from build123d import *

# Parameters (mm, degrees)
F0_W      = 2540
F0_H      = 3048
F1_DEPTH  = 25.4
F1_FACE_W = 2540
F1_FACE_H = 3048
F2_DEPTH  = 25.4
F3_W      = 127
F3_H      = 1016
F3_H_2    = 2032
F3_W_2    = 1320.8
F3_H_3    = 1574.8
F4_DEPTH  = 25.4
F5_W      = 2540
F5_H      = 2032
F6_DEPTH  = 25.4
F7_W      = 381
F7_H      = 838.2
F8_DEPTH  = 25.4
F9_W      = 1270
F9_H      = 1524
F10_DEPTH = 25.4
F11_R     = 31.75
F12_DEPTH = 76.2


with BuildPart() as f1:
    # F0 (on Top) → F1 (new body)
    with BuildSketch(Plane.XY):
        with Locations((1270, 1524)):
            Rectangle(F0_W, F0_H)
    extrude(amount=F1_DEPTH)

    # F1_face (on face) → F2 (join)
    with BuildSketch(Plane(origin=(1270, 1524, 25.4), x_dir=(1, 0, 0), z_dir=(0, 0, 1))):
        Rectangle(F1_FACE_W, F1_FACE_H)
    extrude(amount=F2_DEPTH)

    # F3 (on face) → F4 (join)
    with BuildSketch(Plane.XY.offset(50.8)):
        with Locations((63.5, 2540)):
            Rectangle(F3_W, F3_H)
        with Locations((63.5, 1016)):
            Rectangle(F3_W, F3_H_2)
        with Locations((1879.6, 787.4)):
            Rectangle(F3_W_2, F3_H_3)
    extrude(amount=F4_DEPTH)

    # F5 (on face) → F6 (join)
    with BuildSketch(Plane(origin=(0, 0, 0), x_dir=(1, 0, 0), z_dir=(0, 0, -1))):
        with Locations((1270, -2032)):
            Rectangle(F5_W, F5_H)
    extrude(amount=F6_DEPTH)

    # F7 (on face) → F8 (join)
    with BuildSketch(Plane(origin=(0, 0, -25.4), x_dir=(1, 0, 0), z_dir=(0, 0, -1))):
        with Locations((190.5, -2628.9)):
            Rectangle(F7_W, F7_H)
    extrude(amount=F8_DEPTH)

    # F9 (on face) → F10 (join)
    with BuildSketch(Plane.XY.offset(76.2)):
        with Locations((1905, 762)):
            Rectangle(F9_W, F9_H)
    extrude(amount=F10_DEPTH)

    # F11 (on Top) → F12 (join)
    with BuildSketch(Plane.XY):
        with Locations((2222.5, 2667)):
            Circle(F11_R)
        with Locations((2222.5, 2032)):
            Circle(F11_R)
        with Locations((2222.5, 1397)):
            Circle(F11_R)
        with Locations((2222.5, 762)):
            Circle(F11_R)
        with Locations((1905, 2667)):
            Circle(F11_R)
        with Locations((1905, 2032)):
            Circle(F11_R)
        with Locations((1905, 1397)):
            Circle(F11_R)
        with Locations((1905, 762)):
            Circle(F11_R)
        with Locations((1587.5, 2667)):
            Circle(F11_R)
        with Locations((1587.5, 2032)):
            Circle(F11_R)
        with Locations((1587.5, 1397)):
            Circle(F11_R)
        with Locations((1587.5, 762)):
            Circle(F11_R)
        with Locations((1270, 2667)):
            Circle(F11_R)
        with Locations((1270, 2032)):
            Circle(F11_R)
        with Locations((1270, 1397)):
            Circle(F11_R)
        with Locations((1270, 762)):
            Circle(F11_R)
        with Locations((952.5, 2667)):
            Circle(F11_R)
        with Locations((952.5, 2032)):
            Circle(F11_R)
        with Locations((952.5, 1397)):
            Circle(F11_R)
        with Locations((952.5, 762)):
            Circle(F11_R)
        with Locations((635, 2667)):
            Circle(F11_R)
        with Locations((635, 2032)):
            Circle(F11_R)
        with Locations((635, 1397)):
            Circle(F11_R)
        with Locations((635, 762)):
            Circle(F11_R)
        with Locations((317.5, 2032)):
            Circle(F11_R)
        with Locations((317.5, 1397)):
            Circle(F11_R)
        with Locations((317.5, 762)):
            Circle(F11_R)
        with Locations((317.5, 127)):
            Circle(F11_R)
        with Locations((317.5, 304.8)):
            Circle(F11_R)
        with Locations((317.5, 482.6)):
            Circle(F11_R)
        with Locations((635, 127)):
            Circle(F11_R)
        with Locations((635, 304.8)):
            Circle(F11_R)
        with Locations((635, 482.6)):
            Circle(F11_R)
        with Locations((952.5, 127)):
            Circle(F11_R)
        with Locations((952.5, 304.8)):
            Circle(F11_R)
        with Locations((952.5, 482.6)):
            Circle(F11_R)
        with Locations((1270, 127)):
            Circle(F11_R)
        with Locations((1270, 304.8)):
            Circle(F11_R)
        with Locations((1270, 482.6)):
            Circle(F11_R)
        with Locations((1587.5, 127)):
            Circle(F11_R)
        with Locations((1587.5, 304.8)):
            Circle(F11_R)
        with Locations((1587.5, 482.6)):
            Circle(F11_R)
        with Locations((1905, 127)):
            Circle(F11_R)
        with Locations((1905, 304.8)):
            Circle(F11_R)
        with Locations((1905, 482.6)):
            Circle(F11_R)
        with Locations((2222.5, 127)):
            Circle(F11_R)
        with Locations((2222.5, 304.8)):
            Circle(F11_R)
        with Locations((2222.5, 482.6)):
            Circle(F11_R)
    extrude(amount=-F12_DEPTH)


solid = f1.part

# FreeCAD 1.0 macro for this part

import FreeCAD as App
import Part
import Sketcher
from FreeCAD import Vector
Q = App.Units.Quantity

doc = App.newDocument("Part")
body = doc.addObject("PartDesign::Body", "Body")

sketch1 = body.newObject("Sketcher::SketchObject", "Sketch")
sketch1.AttachmentSupport = (doc.getObject("XY_Plane"), [""])
sketch1.MapMode = "FlatFace"
sketch1.addGeometry([
    Part.LineSegment(Vector(0, 3048, 0), Vector(0, 0, 0)),
    Part.LineSegment(Vector(0, 0, 0), Vector(2540, 0, 0)),
    Part.LineSegment(Vector(2540, 0, 0), Vector(2540, 3048, 0)),
    Part.LineSegment(Vector(2540, 3048, 0), Vector(0, 3048, 0)),
], False)
sketch1.addConstraint([
    Sketcher.Constraint("Coincident", 0, 2, 1, 1),
    Sketcher.Constraint("Coincident", 1, 2, 2, 1),
    Sketcher.Constraint("Coincident", 2, 2, 3, 1),
    Sketcher.Constraint("Coincident", 3, 2, 0, 1),
    Sketcher.Constraint("Vertical", 0),
    Sketcher.Constraint("Horizontal", 1),
    Sketcher.Constraint("Vertical", 2),
    Sketcher.Constraint("Horizontal", 3),
    Sketcher.Constraint("Coincident", 0, 2, -1, 1),
    Sketcher.Constraint("DistanceX", 1, 1, 1, 2, Q("100 in")),
    Sketcher.Constraint("DistanceY", 0, 2, 0, 1, Q("120 in")),
])
pad1 = body.newObject("PartDesign::Pad", "Pad")
pad1.Profile = sketch1
pad1.Length = Q("1 in")

sketch2 = body.newObject("Sketcher::SketchObject", "Sketch001")
sketch2.AttachmentSupport = (doc.getObject("XY_Plane"), [""])
sketch2.MapMode = "FlatFace"
sketch2.AttachmentOffset = App.Placement(Vector(0, 0, 1 * 25.4), App.Rotation())
sketch2.addGeometry([
    Part.LineSegment(Vector(0, 3048, 0), Vector(0, 0, 0)),
    Part.LineSegment(Vector(0, 0, 0), Vector(2540, 0, 0)),
    Part.LineSegment(Vector(2540, 0, 0), Vector(2540, 3048, 0)),
    Part.LineSegment(Vector(2540, 3048, 0), Vector(0, 3048, 0)),
], False)
sketch2.addConstraint([
    Sketcher.Constraint("Coincident", 0, 2, 1, 1),
    Sketcher.Constraint("Coincident", 1, 2, 2, 1),
    Sketcher.Constraint("Coincident", 2, 2, 3, 1),
    Sketcher.Constraint("Coincident", 3, 2, 0, 1),
    Sketcher.Constraint("Vertical", 0),
    Sketcher.Constraint("Horizontal", 1),
    Sketcher.Constraint("Vertical", 2),
    Sketcher.Constraint("Horizontal", 3),
    Sketcher.Constraint("Coincident", 0, 2, -1, 1),
    Sketcher.Constraint("DistanceX", 1, 1, 1, 2, Q("100 in")),
    Sketcher.Constraint("DistanceY", 0, 2, 0, 1, Q("120 in")),
])
pad2 = body.newObject("PartDesign::Pad", "Pad001")
pad2.Profile = sketch2
pad2.Length = Q("1 in")

sketch3 = body.newObject("Sketcher::SketchObject", "Sketch002")
sketch3.AttachmentSupport = (doc.getObject("XY_Plane"), [""])
sketch3.MapMode = "FlatFace"
sketch3.AttachmentOffset = App.Placement(Vector(0, 0, 2 * 25.4), App.Rotation())
sketch3.addGeometry([
    Part.LineSegment(Vector(0, 3048, 0), Vector(0, 0, 0)),
    Part.LineSegment(Vector(0, 0, 0), Vector(127, 0, 0)),
    Part.LineSegment(Vector(127, 0, 0), Vector(127, 3048, 0)),
    Part.LineSegment(Vector(127, 3048, 0), Vector(0, 3048, 0)),
    Part.LineSegment(Vector(1219.2, 1574.8, 0), Vector(1219.2, 0, 0)),
    Part.LineSegment(Vector(1219.2, 0, 0), Vector(2540, 0, 0)),
    Part.LineSegment(Vector(2540, 0, 0), Vector(2540, 1574.8, 0)),
    Part.LineSegment(Vector(2540, 1574.8, 0), Vector(1219.2, 1574.8, 0)),
], False)
sketch3.addConstraint([
    Sketcher.Constraint("Coincident", 0, 2, 1, 1),
    Sketcher.Constraint("Coincident", 1, 2, 2, 1),
    Sketcher.Constraint("Coincident", 2, 2, 3, 1),
    Sketcher.Constraint("Coincident", 3, 2, 0, 1),
    Sketcher.Constraint("Coincident", 4, 2, 5, 1),
    Sketcher.Constraint("Coincident", 5, 2, 6, 1),
    Sketcher.Constraint("Coincident", 6, 2, 7, 1),
    Sketcher.Constraint("Coincident", 7, 2, 4, 1),
    Sketcher.Constraint("Vertical", 0),
    Sketcher.Constraint("Horizontal", 1),
    Sketcher.Constraint("Vertical", 2),
    Sketcher.Constraint("Horizontal", 3),
    Sketcher.Constraint("Vertical", 4),
    Sketcher.Constraint("Horizontal", 5),
    Sketcher.Constraint("Vertical", 6),
    Sketcher.Constraint("Horizontal", 7),
    Sketcher.Constraint("Coincident", 0, 2, -1, 1),
    Sketcher.Constraint("PointOnObject", 4, 2, -1),
    Sketcher.Constraint("DistanceX", 1, 1, 1, 2, Q("5 in")),
    Sketcher.Constraint("DistanceX", 5, 1, 5, 2, Q("52 in")),
    Sketcher.Constraint("DistanceY", 0, 2, 0, 1, Q("120 in")),
    Sketcher.Constraint("DistanceY", 4, 2, 4, 1, Q("62 in")),
    Sketcher.Constraint("DistanceX", -1, 1, 4, 2, Q("48 in")),
])
pad3 = body.newObject("PartDesign::Pad", "Pad002")
pad3.Profile = sketch3
pad3.Length = Q("1 in")

sketch4 = body.newObject("Sketcher::SketchObject", "Sketch003")
sketch4.AttachmentSupport = (doc.getObject("XY_Plane"), [""])
sketch4.MapMode = "FlatFace"
sketch4.addGeometry([
    Part.LineSegment(Vector(0, 1016, 0), Vector(0, 3048, 0)),
    Part.LineSegment(Vector(0, 3048, 0), Vector(2540, 3048, 0)),
    Part.LineSegment(Vector(2540, 3048, 0), Vector(2540, 1016, 0)),
    Part.LineSegment(Vector(2540, 1016, 0), Vector(0, 1016, 0)),
], False)
sketch4.addConstraint([
    Sketcher.Constraint("Coincident", 0, 2, 1, 1),
    Sketcher.Constraint("Coincident", 1, 2, 2, 1),
    Sketcher.Constraint("Coincident", 2, 2, 3, 1),
    Sketcher.Constraint("Coincident", 3, 2, 0, 1),
    Sketcher.Constraint("Vertical", 0),
    Sketcher.Constraint("Horizontal", 1),
    Sketcher.Constraint("Vertical", 2),
    Sketcher.Constraint("Horizontal", 3),
    Sketcher.Constraint("PointOnObject", 0, 2, -2),
    Sketcher.Constraint("DistanceX", 1, 1, 1, 2, Q("100 in")),
    Sketcher.Constraint("DistanceY", 0, 1, 0, 2, Q("80 in")),
    Sketcher.Constraint("DistanceY", -1, 1, 0, 2, Q("120 in")),
])
pad4 = body.newObject("PartDesign::Pad", "Pad003")
pad4.Profile = sketch4
pad4.Length = Q("1 in")
pad4.Reversed = True

sketch5 = body.newObject("Sketcher::SketchObject", "Sketch004")
sketch5.AttachmentSupport = (doc.getObject("XY_Plane"), [""])
sketch5.MapMode = "FlatFace"
sketch5.AttachmentOffset = App.Placement(Vector(0, 0, -1 * 25.4), App.Rotation())
sketch5.addGeometry([
    Part.LineSegment(Vector(0, 2209.8, 0), Vector(0, 3048, 0)),
    Part.LineSegment(Vector(0, 3048, 0), Vector(381, 3048, 0)),
    Part.LineSegment(Vector(381, 3048, 0), Vector(381, 2209.8, 0)),
    Part.LineSegment(Vector(381, 2209.8, 0), Vector(0, 2209.8, 0)),
], False)
sketch5.addConstraint([
    Sketcher.Constraint("Coincident", 0, 2, 1, 1),
    Sketcher.Constraint("Coincident", 1, 2, 2, 1),
    Sketcher.Constraint("Coincident", 2, 2, 3, 1),
    Sketcher.Constraint("Coincident", 3, 2, 0, 1),
    Sketcher.Constraint("Vertical", 0),
    Sketcher.Constraint("Horizontal", 1),
    Sketcher.Constraint("Vertical", 2),
    Sketcher.Constraint("Horizontal", 3),
    Sketcher.Constraint("PointOnObject", 0, 2, -2),
    Sketcher.Constraint("DistanceX", 1, 1, 1, 2, Q("15 in")),
    Sketcher.Constraint("DistanceY", 0, 1, 0, 2, Q("33 in")),
    Sketcher.Constraint("DistanceY", -1, 1, 0, 2, Q("120 in")),
])
pad5 = body.newObject("PartDesign::Pad", "Pad004")
pad5.Profile = sketch5
pad5.Length = Q("1 in")
pad5.Reversed = True

sketch6 = body.newObject("Sketcher::SketchObject", "Sketch005")
sketch6.AttachmentSupport = (doc.getObject("XY_Plane"), [""])
sketch6.MapMode = "FlatFace"
sketch6.AttachmentOffset = App.Placement(Vector(0, 0, 3 * 25.4), App.Rotation())
sketch6.addGeometry([
    Part.LineSegment(Vector(1270, 1524, 0), Vector(1270, 0, 0)),
    Part.LineSegment(Vector(1270, 0, 0), Vector(2540, 0, 0)),
    Part.LineSegment(Vector(2540, 0, 0), Vector(2540, 1524, 0)),
    Part.LineSegment(Vector(2540, 1524, 0), Vector(1270, 1524, 0)),
], False)
sketch6.addConstraint([
    Sketcher.Constraint("Coincident", 0, 2, 1, 1),
    Sketcher.Constraint("Coincident", 1, 2, 2, 1),
    Sketcher.Constraint("Coincident", 2, 2, 3, 1),
    Sketcher.Constraint("Coincident", 3, 2, 0, 1),
    Sketcher.Constraint("Vertical", 0),
    Sketcher.Constraint("Horizontal", 1),
    Sketcher.Constraint("Vertical", 2),
    Sketcher.Constraint("Horizontal", 3),
    Sketcher.Constraint("PointOnObject", 0, 2, -1),
    Sketcher.Constraint("DistanceX", 1, 1, 1, 2, Q("50 in")),
    Sketcher.Constraint("DistanceY", 0, 2, 0, 1, Q("60 in")),
    Sketcher.Constraint("DistanceX", -1, 1, 0, 2, Q("50 in")),
])
pad6 = body.newObject("PartDesign::Pad", "Pad005")
pad6.Profile = sketch6
pad6.Length = Q("1 in")

sketch7 = body.newObject("Sketcher::SketchObject", "Sketch006")
sketch7.AttachmentSupport = (doc.getObject("XY_Plane"), [""])
sketch7.MapMode = "FlatFace"
sketch7.addGeometry([
    Part.Circle(Vector(2222.5, 2667, 0), Vector(0, 0, 1), 31.75),
    Part.Circle(Vector(2222.5, 2032, 0), Vector(0, 0, 1), 31.75),
    Part.Circle(Vector(2222.5, 1397, 0), Vector(0, 0, 1), 31.75),
    Part.Circle(Vector(2222.5, 762, 0), Vector(0, 0, 1), 31.75),
    Part.Circle(Vector(1905, 2667, 0), Vector(0, 0, 1), 31.75),
    Part.Circle(Vector(1905, 2032, 0), Vector(0, 0, 1), 31.75),
    Part.Circle(Vector(1905, 1397, 0), Vector(0, 0, 1), 31.75),
    Part.Circle(Vector(1905, 762, 0), Vector(0, 0, 1), 31.75),
    Part.Circle(Vector(1587.5, 2667, 0), Vector(0, 0, 1), 31.75),
    Part.Circle(Vector(1587.5, 2032, 0), Vector(0, 0, 1), 31.75),
    Part.Circle(Vector(1587.5, 1397, 0), Vector(0, 0, 1), 31.75),
    Part.Circle(Vector(1587.5, 762, 0), Vector(0, 0, 1), 31.75),
    Part.Circle(Vector(1270, 2667, 0), Vector(0, 0, 1), 31.75),
    Part.Circle(Vector(1270, 2032, 0), Vector(0, 0, 1), 31.75),
    Part.Circle(Vector(1270, 1397, 0), Vector(0, 0, 1), 31.75),
    Part.Circle(Vector(1270, 762, 0), Vector(0, 0, 1), 31.75),
    Part.Circle(Vector(952.5, 2667, 0), Vector(0, 0, 1), 31.75),
    Part.Circle(Vector(952.5, 2032, 0), Vector(0, 0, 1), 31.75),
    Part.Circle(Vector(952.5, 1397, 0), Vector(0, 0, 1), 31.75),
    Part.Circle(Vector(952.5, 762, 0), Vector(0, 0, 1), 31.75),
    Part.Circle(Vector(635, 2667, 0), Vector(0, 0, 1), 31.75),
    Part.Circle(Vector(635, 2032, 0), Vector(0, 0, 1), 31.75),
    Part.Circle(Vector(635, 1397, 0), Vector(0, 0, 1), 31.75),
    Part.Circle(Vector(635, 762, 0), Vector(0, 0, 1), 31.75),
    Part.Circle(Vector(317.5, 2032, 0), Vector(0, 0, 1), 31.75),
    Part.Circle(Vector(317.5, 1397, 0), Vector(0, 0, 1), 31.75),
    Part.Circle(Vector(317.5, 762, 0), Vector(0, 0, 1), 31.75),
    Part.Circle(Vector(317.5, 127, 0), Vector(0, 0, 1), 31.75),
    Part.Circle(Vector(317.5, 304.8, 0), Vector(0, 0, 1), 31.75),
    Part.Circle(Vector(317.5, 482.6, 0), Vector(0, 0, 1), 31.75),
    Part.Circle(Vector(635, 127, 0), Vector(0, 0, 1), 31.75),
    Part.Circle(Vector(635, 304.8, 0), Vector(0, 0, 1), 31.75),
    Part.Circle(Vector(635, 482.6, 0), Vector(0, 0, 1), 31.75),
    Part.Circle(Vector(952.5, 127, 0), Vector(0, 0, 1), 31.75),
    Part.Circle(Vector(952.5, 304.8, 0), Vector(0, 0, 1), 31.75),
    Part.Circle(Vector(952.5, 482.6, 0), Vector(0, 0, 1), 31.75),
    Part.Circle(Vector(1270, 127, 0), Vector(0, 0, 1), 31.75),
    Part.Circle(Vector(1270, 304.8, 0), Vector(0, 0, 1), 31.75),
    Part.Circle(Vector(1270, 482.6, 0), Vector(0, 0, 1), 31.75),
    Part.Circle(Vector(1587.5, 127, 0), Vector(0, 0, 1), 31.75),
    Part.Circle(Vector(1587.5, 304.8, 0), Vector(0, 0, 1), 31.75),
    Part.Circle(Vector(1587.5, 482.6, 0), Vector(0, 0, 1), 31.75),
    Part.Circle(Vector(1905, 127, 0), Vector(0, 0, 1), 31.75),
    Part.Circle(Vector(1905, 304.8, 0), Vector(0, 0, 1), 31.75),
    Part.Circle(Vector(1905, 482.6, 0), Vector(0, 0, 1), 31.75),
    Part.Circle(Vector(2222.5, 127, 0), Vector(0, 0, 1), 31.75),
    Part.Circle(Vector(2222.5, 304.8, 0), Vector(0, 0, 1), 31.75),
    Part.Circle(Vector(2222.5, 482.6, 0), Vector(0, 0, 1), 31.75),
], False)
sketch7.addConstraint([
    Sketcher.Constraint("Equal", 0, 1),
    Sketcher.Constraint("Equal", 1, 2),
    Sketcher.Constraint("Equal", 2, 3),
    Sketcher.Constraint("Equal", 3, 4),
    Sketcher.Constraint("Equal", 4, 5),
    Sketcher.Constraint("Equal", 5, 6),
    Sketcher.Constraint("Equal", 6, 7),
    Sketcher.Constraint("Equal", 7, 8),
    Sketcher.Constraint("Equal", 8, 9),
    Sketcher.Constraint("Equal", 9, 10),
    Sketcher.Constraint("Equal", 10, 11),
    Sketcher.Constraint("Equal", 11, 12),
    Sketcher.Constraint("Equal", 12, 13),
    Sketcher.Constraint("Equal", 13, 14),
    Sketcher.Constraint("Equal", 14, 15),
    Sketcher.Constraint("Equal", 15, 16),
    Sketcher.Constraint("Equal", 16, 17),
    Sketcher.Constraint("Equal", 17, 18),
    Sketcher.Constraint("Equal", 18, 19),
    Sketcher.Constraint("Equal", 19, 20),
    Sketcher.Constraint("Equal", 20, 21),
    Sketcher.Constraint("Equal", 21, 22),
    Sketcher.Constraint("Equal", 22, 23),
    Sketcher.Constraint("Equal", 23, 24),
    Sketcher.Constraint("Equal", 24, 25),
    Sketcher.Constraint("Equal", 25, 26),
    Sketcher.Constraint("Equal", 26, 27),
    Sketcher.Constraint("Equal", 27, 28),
    Sketcher.Constraint("Equal", 28, 29),
    Sketcher.Constraint("Equal", 29, 30),
    Sketcher.Constraint("Equal", 30, 31),
    Sketcher.Constraint("Equal", 31, 32),
    Sketcher.Constraint("Equal", 32, 33),
    Sketcher.Constraint("Equal", 33, 34),
    Sketcher.Constraint("Equal", 34, 35),
    Sketcher.Constraint("Equal", 35, 36),
    Sketcher.Constraint("Equal", 36, 37),
    Sketcher.Constraint("Equal", 37, 38),
    Sketcher.Constraint("Equal", 38, 39),
    Sketcher.Constraint("Equal", 39, 40),
    Sketcher.Constraint("Equal", 40, 41),
    Sketcher.Constraint("Equal", 41, 42),
    Sketcher.Constraint("Equal", 42, 43),
    Sketcher.Constraint("Equal", 43, 44),
    Sketcher.Constraint("Equal", 44, 45),
    Sketcher.Constraint("Equal", 45, 46),
    Sketcher.Constraint("Equal", 46, 47),
    Sketcher.Constraint("Horizontal", 0, 3, 4, 3),
    Sketcher.Constraint("Horizontal", 1, 3, 5, 3),
    Sketcher.Constraint("Horizontal", 2, 3, 6, 3),
    Sketcher.Constraint("Horizontal", 3, 3, 7, 3),
    Sketcher.Constraint("Horizontal", 4, 3, 8, 3),
    Sketcher.Constraint("Horizontal", 5, 3, 9, 3),
    Sketcher.Constraint("Horizontal", 6, 3, 10, 3),
    Sketcher.Constraint("Horizontal", 7, 3, 11, 3),
    Sketcher.Constraint("Horizontal", 8, 3, 12, 3),
    Sketcher.Constraint("Horizontal", 9, 3, 13, 3),
    Sketcher.Constraint("Horizontal", 10, 3, 14, 3),
    Sketcher.Constraint("Horizontal", 11, 3, 15, 3),
    Sketcher.Constraint("Horizontal", 12, 3, 16, 3),
    Sketcher.Constraint("Horizontal", 13, 3, 17, 3),
    Sketcher.Constraint("Horizontal", 14, 3, 18, 3),
    Sketcher.Constraint("Horizontal", 15, 3, 19, 3),
    Sketcher.Constraint("Horizontal", 16, 3, 20, 3),
    Sketcher.Constraint("Horizontal", 17, 3, 21, 3),
    Sketcher.Constraint("Horizontal", 18, 3, 22, 3),
    Sketcher.Constraint("Horizontal", 19, 3, 23, 3),
    Sketcher.Constraint("Horizontal", 21, 3, 24, 3),
    Sketcher.Constraint("Horizontal", 22, 3, 25, 3),
    Sketcher.Constraint("Horizontal", 23, 3, 26, 3),
    Sketcher.Constraint("Horizontal", 27, 3, 30, 3),
    Sketcher.Constraint("Horizontal", 28, 3, 31, 3),
    Sketcher.Constraint("Horizontal", 29, 3, 32, 3),
    Sketcher.Constraint("Horizontal", 30, 3, 33, 3),
    Sketcher.Constraint("Horizontal", 31, 3, 34, 3),
    Sketcher.Constraint("Horizontal", 32, 3, 35, 3),
    Sketcher.Constraint("Horizontal", 33, 3, 36, 3),
    Sketcher.Constraint("Horizontal", 34, 3, 37, 3),
    Sketcher.Constraint("Horizontal", 35, 3, 38, 3),
    Sketcher.Constraint("Horizontal", 36, 3, 39, 3),
    Sketcher.Constraint("Horizontal", 37, 3, 40, 3),
    Sketcher.Constraint("Horizontal", 38, 3, 41, 3),
    Sketcher.Constraint("Horizontal", 39, 3, 42, 3),
    Sketcher.Constraint("Horizontal", 40, 3, 43, 3),
    Sketcher.Constraint("Horizontal", 41, 3, 44, 3),
    Sketcher.Constraint("Horizontal", 42, 3, 45, 3),
    Sketcher.Constraint("Horizontal", 43, 3, 46, 3),
    Sketcher.Constraint("Horizontal", 44, 3, 47, 3),
    Sketcher.Constraint("Vertical", 0, 3, 1, 3),
    Sketcher.Constraint("Vertical", 1, 3, 2, 3),
    Sketcher.Constraint("Vertical", 2, 3, 3, 3),
    Sketcher.Constraint("Vertical", 4, 3, 5, 3),
    Sketcher.Constraint("Vertical", 5, 3, 6, 3),
    Sketcher.Constraint("Vertical", 6, 3, 7, 3),
    Sketcher.Constraint("Vertical", 8, 3, 9, 3),
    Sketcher.Constraint("Vertical", 9, 3, 10, 3),
    Sketcher.Constraint("Vertical", 10, 3, 11, 3),
    Sketcher.Constraint("Vertical", 12, 3, 13, 3),
    Sketcher.Constraint("Vertical", 13, 3, 14, 3),
    Sketcher.Constraint("Vertical", 14, 3, 15, 3),
    Sketcher.Constraint("Vertical", 16, 3, 17, 3),
    Sketcher.Constraint("Vertical", 17, 3, 18, 3),
    Sketcher.Constraint("Vertical", 18, 3, 19, 3),
    Sketcher.Constraint("Vertical", 20, 3, 21, 3),
    Sketcher.Constraint("Vertical", 21, 3, 22, 3),
    Sketcher.Constraint("Vertical", 22, 3, 23, 3),
    Sketcher.Constraint("Vertical", 24, 3, 25, 3),
    Sketcher.Constraint("Vertical", 25, 3, 26, 3),
    Sketcher.Constraint("Vertical", 26, 3, 27, 3),
    Sketcher.Constraint("Vertical", 27, 3, 28, 3),
    Sketcher.Constraint("Vertical", 28, 3, 29, 3),
    Sketcher.Constraint("Vertical", 23, 3, 30, 3),
    Sketcher.Constraint("Vertical", 30, 3, 31, 3),
    Sketcher.Constraint("Vertical", 31, 3, 32, 3),
    Sketcher.Constraint("Vertical", 19, 3, 33, 3),
    Sketcher.Constraint("Vertical", 33, 3, 34, 3),
    Sketcher.Constraint("Vertical", 34, 3, 35, 3),
    Sketcher.Constraint("Vertical", 15, 3, 36, 3),
    Sketcher.Constraint("Vertical", 36, 3, 37, 3),
    Sketcher.Constraint("Vertical", 37, 3, 38, 3),
    Sketcher.Constraint("Vertical", 11, 3, 39, 3),
    Sketcher.Constraint("Vertical", 39, 3, 40, 3),
    Sketcher.Constraint("Vertical", 40, 3, 41, 3),
    Sketcher.Constraint("Vertical", 7, 3, 42, 3),
    Sketcher.Constraint("Vertical", 42, 3, 43, 3),
    Sketcher.Constraint("Vertical", 43, 3, 44, 3),
    Sketcher.Constraint("Vertical", 3, 3, 45, 3),
    Sketcher.Constraint("Vertical", 45, 3, 46, 3),
    Sketcher.Constraint("Vertical", 46, 3, 47, 3),
    Sketcher.Constraint("Diameter", 0, Q("2.5 in")),
    Sketcher.Constraint("DistanceY", -1, 1, 0, 3, Q("105 in")),
    Sketcher.Constraint("DistanceY", -1, 1, 1, 3, Q("80 in")),
    Sketcher.Constraint("DistanceY", -1, 1, 2, 3, Q("55 in")),
    Sketcher.Constraint("DistanceY", -1, 1, 3, 3, Q("30 in")),
    Sketcher.Constraint("DistanceX", -1, 1, 4, 3, Q("75 in")),
    Sketcher.Constraint("DistanceX", -1, 1, 12, 3, Q("50 in")),
    Sketcher.Constraint("DistanceX", -1, 1, 20, 3, Q("25 in")),
    Sketcher.Constraint("DistanceY", -1, 1, 27, 3, Q("5 in")),
    Sketcher.Constraint("DistanceY", -1, 1, 28, 3, Q("12 in")),
    Sketcher.Constraint("DistanceY", -1, 1, 29, 3, Q("19 in")),
    Sketcher.Constraint("DistanceX", 8, 3, 0, 3, Q("25 in")),
    Sketcher.Constraint("DistanceX", 16, 3, 8, 3, Q("25 in")),
    Sketcher.Constraint("DistanceX", 24, 3, 17, 3, Q("25 in")),
    Sketcher.Constraint("DistanceX", -1, 1, 0, 3, Q("87.5 in")),
])
pad7 = body.newObject("PartDesign::Pad", "Pad006")
pad7.Profile = sketch7
pad7.Length = Q("3 in")
pad7.Reversed = True

doc.recompute()
